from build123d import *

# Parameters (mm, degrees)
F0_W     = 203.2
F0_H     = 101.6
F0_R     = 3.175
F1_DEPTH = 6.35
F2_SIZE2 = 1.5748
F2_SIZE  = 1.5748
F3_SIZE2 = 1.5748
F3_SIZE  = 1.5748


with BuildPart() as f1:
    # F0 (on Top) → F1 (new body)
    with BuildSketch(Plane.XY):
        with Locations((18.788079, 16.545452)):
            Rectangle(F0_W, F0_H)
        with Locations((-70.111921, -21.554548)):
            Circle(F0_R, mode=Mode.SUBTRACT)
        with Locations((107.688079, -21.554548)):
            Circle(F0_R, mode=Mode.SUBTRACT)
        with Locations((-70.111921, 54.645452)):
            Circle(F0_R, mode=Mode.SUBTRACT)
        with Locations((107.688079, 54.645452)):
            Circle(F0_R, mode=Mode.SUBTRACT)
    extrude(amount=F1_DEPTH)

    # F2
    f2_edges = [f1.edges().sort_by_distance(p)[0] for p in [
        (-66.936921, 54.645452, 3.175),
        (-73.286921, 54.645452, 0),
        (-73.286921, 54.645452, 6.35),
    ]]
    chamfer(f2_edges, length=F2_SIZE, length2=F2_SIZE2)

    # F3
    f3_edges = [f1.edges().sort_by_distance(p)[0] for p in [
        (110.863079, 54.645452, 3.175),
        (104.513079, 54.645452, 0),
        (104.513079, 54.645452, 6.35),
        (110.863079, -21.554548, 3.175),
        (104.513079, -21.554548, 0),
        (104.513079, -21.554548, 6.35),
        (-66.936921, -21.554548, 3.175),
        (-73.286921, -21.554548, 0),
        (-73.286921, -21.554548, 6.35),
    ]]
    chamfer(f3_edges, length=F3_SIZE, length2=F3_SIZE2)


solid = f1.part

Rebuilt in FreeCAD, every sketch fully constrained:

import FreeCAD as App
import Part
import Sketcher
Q = App.Units.Quantity


def edges_at(feature, points):
    """Names of the edges that pass closest to the given points."""
    edges = feature.Shape.Edges
    near = lambda p: min(range(len(edges)), key=lambda i: edges[i].distToShape(Part.Vertex(*p))[0])
    return sorted({f"Edge{near(p) + 1}" for p in points})


def add_polygon(sketch, points):
    """Adds a closed chain of lines whose ends are joined by coincident constraints."""
    first, n = sketch.GeometryCount, len(points)
    for a, b in zip(points, points[1:] + points[:1]):
        sketch.addGeometry(Part.LineSegment(App.Vector(*a, 0), App.Vector(*b, 0)), False)
    for i in range(n):
        sketch.addConstraint(Sketcher.Constraint("Coincident", first + i, 2, first + (i + 1) % n, 1))

doc = App.newDocument("Part")
body = doc.addObject("PartDesign::Body", "Body")

# Sketch on XY plane
sketch1 = body.newObject("Sketcher::SketchObject", "Sketch")
sketch1.AttachmentSupport = (doc.getObject("XY_Plane"), [""])
sketch1.MapMode = "FlatFace"
add_polygon(sketch1, [(-82.811921, 67.345452), (-82.811921, -34.254548), (120.388079, -34.254548), (120.388079, 67.345452)])  # lines 0-3
sketch1.addGeometry(Part.Circle(App.Vector(-70.111921, -21.554548, 0), App.Vector(0, 0, 1), 3.175), False)  # 4
sketch1.addGeometry(Part.Circle(App.Vector(107.688079, -21.554548, 0), App.Vector(0, 0, 1), 3.175), False)  # 5
sketch1.addGeometry(Part.Circle(App.Vector(-70.111921, 54.645452, 0), App.Vector(0, 0, 1), 3.175), False)  # 6
sketch1.addGeometry(Part.Circle(App.Vector(107.688079, 54.645452, 0), App.Vector(0, 0, 1), 3.175), False)  # 7
sketch1.addConstraint([
    Sketcher.Constraint("Vertical", 0),
    Sketcher.Constraint("Horizontal", 1),
    Sketcher.Constraint("Vertical", 2),
    Sketcher.Constraint("Horizontal", 3),
    Sketcher.Constraint("Equal", 4, 5),
    Sketcher.Constraint("Equal", 5, 6),
    Sketcher.Constraint("Equal", 6, 7),
    Sketcher.Constraint("Horizontal", 4, 3, 5, 3),
    Sketcher.Constraint("Horizontal", 6, 3, 7, 3),
    Sketcher.Constraint("Vertical", 4, 3, 6, 3),
    Sketcher.Constraint("Vertical", 5, 3, 7, 3),
    Sketcher.Constraint("Diameter", 4, Q("0.25 in")),
    Sketcher.Constraint("DistanceX", 1, 1, 1, 2, Q("8 in")),
    Sketcher.Constraint("DistanceY", 0, 2, 0, 1, Q("4 in")),
    Sketcher.Constraint("DistanceX", 4, 3, 5, 3, Q("7 in")),
    Sketcher.Constraint("DistanceY", 4, 3, 6, 3, Q("3 in")),
    Sketcher.Constraint("DistanceX", 0, 2, 4, 3, Q("0.5 in")),
    Sketcher.Constraint("DistanceY", 0, 2, 4, 3, Q("0.5 in")),
    Sketcher.Constraint("DistanceX", 4, 3, -1, 1, 70.111921),
    Sketcher.Constraint("DistanceY", 4, 3, -1, 1, 21.554548),
])
pad1 = body.newObject("PartDesign::Pad", "Pad")
pad1.Profile = sketch1
pad1.Length = Q("0.25 in")
doc.recompute()

chamfer = body.newObject("PartDesign::Chamfer", "Chamfer")
chamfer.Base = (pad1, edges_at(pad1, [(-66.937, 54.645, 3.175), (-73.287, 54.645, 0), (-73.287, 54.645, 6.35)]))
chamfer.ChamferType = "Two distances"
chamfer.Size = Q("0.062 in")
chamfer.Size2 = Q("0.062 in")
doc.recompute()

chamfer2 = body.newObject("PartDesign::Chamfer", "Chamfer001")
chamfer2.Base = (chamfer, edges_at(chamfer, [
    (110.863, 54.645, 3.175),
    (104.513, 54.645, 0),
    (104.513, 54.645, 6.35),
    (110.863, -21.555, 3.175),
    (104.513, -21.555, 0),
    (104.513, -21.555, 6.35),
    (-66.937, -21.555, 3.175),
    (-73.287, -21.555, 0),
    (-73.287, -21.555, 6.35),
]))
chamfer2.ChamferType = "Two distances"
chamfer2.Size = Q("0.062 in")
chamfer2.Size2 = Q("0.062 in")

doc.recompute()
